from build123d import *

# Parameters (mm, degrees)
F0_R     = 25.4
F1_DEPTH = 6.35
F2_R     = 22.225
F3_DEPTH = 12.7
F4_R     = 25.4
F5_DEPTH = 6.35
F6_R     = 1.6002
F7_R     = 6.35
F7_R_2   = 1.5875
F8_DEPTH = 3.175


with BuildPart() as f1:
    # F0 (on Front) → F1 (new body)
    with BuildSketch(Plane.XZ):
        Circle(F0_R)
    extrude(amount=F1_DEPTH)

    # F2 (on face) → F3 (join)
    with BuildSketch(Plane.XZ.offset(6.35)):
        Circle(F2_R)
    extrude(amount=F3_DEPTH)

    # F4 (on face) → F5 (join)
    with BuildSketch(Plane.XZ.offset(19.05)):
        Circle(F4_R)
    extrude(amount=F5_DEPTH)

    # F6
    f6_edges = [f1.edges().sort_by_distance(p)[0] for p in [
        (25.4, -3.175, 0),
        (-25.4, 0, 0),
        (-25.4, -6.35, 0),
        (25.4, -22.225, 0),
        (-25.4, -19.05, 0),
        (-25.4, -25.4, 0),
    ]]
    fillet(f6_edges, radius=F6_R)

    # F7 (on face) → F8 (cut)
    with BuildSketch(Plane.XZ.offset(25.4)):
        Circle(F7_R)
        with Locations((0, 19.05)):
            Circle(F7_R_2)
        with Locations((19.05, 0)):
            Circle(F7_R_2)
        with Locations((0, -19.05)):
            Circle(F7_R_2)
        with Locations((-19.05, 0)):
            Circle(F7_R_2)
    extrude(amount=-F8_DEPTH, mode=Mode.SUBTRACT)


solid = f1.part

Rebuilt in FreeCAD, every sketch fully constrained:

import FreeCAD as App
import Part
import Sketcher
Q = App.Units.Quantity


def edges_at(feature, points):
    """Names of the edges that pass closest to the given points."""
    edges = feature.Shape.Edges
    near = lambda p: min(range(len(edges)), key=lambda i: edges[i].distToShape(Part.Vertex(*p))[0])
    return sorted({f"Edge{near(p) + 1}" for p in points})

doc = App.newDocument("Part")
body = doc.addObject("PartDesign::Body", "Body")

# Sketch on XZ plane
sketch1 = body.newObject("Sketcher::SketchObject", "Sketch")
sketch1.AttachmentSupport = (doc.getObject("XZ_Plane"), [""])
sketch1.MapMode = "FlatFace"
sketch1.addGeometry(Part.Circle(App.Vector(0, 0, 0), App.Vector(0, 0, 1), 25), False)
sketch1.addConstraint([
    Sketcher.Constraint("Coincident", 0, 3, -1, 1),
    Sketcher.Constraint("Diameter", 0, Q("2 in")),
])
pad1 = body.newObject("PartDesign::Pad", "Pad")
pad1.Profile = sketch1
pad1.Length = Q("0.25 in")

# Sketch on XZ plane
sketch2 = body.newObject("Sketcher::SketchObject", "Sketch001")
sketch2.AttachmentSupport = (doc.getObject("XZ_Plane"), [""])
sketch2.MapMode = "FlatFace"
sketch2.AttachmentOffset = App.Placement(App.Vector(0, 0, 0.25 * 25.4), App.Rotation())
sketch2.addGeometry(Part.Circle(App.Vector(0, 0, 0), App.Vector(0, 0, 1), 22), False)
sketch2.addConstraint([
    Sketcher.Constraint("Coincident", 0, 3, -1, 1),
    Sketcher.Constraint("Diameter", 0, Q("1.75 in")),
])
pad2 = body.newObject("PartDesign::Pad", "Pad001")
pad2.Profile = sketch2
pad2.Length = Q("0.5 in")

# Sketch on XZ plane
sketch3 = body.newObject("Sketcher::SketchObject", "Sketch002")
sketch3.AttachmentSupport = (doc.getObject("XZ_Plane"), [""])
sketch3.MapMode = "FlatFace"
sketch3.AttachmentOffset = App.Placement(App.Vector(0, 0, 0.75 * 25.4), App.Rotation())
sketch3.addGeometry(Part.Circle(App.Vector(0, 0, 0), App.Vector(0, 0, 1), 25), False)
sketch3.addConstraint([
    Sketcher.Constraint("Coincident", 0, 3, -1, 1),
    Sketcher.Constraint("Diameter", 0, Q("2 in")),
])
pad3 = body.newObject("PartDesign::Pad", "Pad002")
pad3.Profile = sketch3
pad3.Length = Q("0.25 in")
doc.recompute()

fillet = body.newObject("PartDesign::Fillet", "Fillet")
fillet.Base = (pad3, edges_at(pad3, [
    (25.4, -3.175, 0),
    (-25.4, 0, 0),
    (-25.4, -6.35, 0),
    (25.4, -22.225, 0),
    (-25.4, -19.05, 0),
    (-25.4, -25.4, 0),
]))
fillet.Radius = Q("0.063 in")

# Sketch on XZ plane
sketch4 = body.newObject("Sketcher::SketchObject", "Sketch003")
sketch4.AttachmentSupport = (doc.getObject("XZ_Plane"), [""])
sketch4.MapMode = "FlatFace"
sketch4.AttachmentOffset = App.Placement(App.Vector(0, 0, 1 * 25.4), App.Rotation())
sketch4.addGeometry([
    Part.Circle(App.Vector(0, 0, 0), App.Vector(0, 0, 1), 6.3),  # 0
    Part.Circle(App.Vector(0, 19.1, 0), App.Vector(0, 0, 1), 1.6),  # 1
    Part.Circle(App.Vector(19.1, 0, 0), App.Vector(0, 0, 1), 1.6),  # 2
    Part.Circle(App.Vector(0, -19.1, 0), App.Vector(0, 0, 1), 1.6),  # 3
    Part.Circle(App.Vector(-19.1, 0, 0), App.Vector(0, 0, 1), 1.6),  # 4
], False)
sketch4.addConstraint([
    Sketcher.Constraint("Coincident", 0, 3, -1, 1),
    Sketcher.Constraint("Equal", 1, 2),
    Sketcher.Constraint("Equal", 2, 3),
    Sketcher.Constraint("Equal", 3, 4),
    Sketcher.Constraint("Symmetric", 1, 3, 3, 3, -1, 1),
    Sketcher.Constraint("Symmetric", 2, 3, 4, 3, -1, 1),
    Sketcher.Constraint("PointOnObject", 1, 3, -2),
    Sketcher.Constraint("PointOnObject", 2, 3, -1),
    Sketcher.Constraint("Diameter", 0, Q("0.5 in")),
    Sketcher.Constraint("Diameter", 1, Q("0.125 in")),
    Sketcher.Constraint("DistanceY", 3, 3, 1, 3, Q("1.5 in")),
    Sketcher.Constraint("DistanceX", 4, 3, 2, 3, Q("1.5 in")),
])
pocket1 = body.newObject("PartDesign::Pocket", "Pocket")
pocket1.Profile = sketch4
pocket1.Length = Q("0.125 in")

doc.recompute()
